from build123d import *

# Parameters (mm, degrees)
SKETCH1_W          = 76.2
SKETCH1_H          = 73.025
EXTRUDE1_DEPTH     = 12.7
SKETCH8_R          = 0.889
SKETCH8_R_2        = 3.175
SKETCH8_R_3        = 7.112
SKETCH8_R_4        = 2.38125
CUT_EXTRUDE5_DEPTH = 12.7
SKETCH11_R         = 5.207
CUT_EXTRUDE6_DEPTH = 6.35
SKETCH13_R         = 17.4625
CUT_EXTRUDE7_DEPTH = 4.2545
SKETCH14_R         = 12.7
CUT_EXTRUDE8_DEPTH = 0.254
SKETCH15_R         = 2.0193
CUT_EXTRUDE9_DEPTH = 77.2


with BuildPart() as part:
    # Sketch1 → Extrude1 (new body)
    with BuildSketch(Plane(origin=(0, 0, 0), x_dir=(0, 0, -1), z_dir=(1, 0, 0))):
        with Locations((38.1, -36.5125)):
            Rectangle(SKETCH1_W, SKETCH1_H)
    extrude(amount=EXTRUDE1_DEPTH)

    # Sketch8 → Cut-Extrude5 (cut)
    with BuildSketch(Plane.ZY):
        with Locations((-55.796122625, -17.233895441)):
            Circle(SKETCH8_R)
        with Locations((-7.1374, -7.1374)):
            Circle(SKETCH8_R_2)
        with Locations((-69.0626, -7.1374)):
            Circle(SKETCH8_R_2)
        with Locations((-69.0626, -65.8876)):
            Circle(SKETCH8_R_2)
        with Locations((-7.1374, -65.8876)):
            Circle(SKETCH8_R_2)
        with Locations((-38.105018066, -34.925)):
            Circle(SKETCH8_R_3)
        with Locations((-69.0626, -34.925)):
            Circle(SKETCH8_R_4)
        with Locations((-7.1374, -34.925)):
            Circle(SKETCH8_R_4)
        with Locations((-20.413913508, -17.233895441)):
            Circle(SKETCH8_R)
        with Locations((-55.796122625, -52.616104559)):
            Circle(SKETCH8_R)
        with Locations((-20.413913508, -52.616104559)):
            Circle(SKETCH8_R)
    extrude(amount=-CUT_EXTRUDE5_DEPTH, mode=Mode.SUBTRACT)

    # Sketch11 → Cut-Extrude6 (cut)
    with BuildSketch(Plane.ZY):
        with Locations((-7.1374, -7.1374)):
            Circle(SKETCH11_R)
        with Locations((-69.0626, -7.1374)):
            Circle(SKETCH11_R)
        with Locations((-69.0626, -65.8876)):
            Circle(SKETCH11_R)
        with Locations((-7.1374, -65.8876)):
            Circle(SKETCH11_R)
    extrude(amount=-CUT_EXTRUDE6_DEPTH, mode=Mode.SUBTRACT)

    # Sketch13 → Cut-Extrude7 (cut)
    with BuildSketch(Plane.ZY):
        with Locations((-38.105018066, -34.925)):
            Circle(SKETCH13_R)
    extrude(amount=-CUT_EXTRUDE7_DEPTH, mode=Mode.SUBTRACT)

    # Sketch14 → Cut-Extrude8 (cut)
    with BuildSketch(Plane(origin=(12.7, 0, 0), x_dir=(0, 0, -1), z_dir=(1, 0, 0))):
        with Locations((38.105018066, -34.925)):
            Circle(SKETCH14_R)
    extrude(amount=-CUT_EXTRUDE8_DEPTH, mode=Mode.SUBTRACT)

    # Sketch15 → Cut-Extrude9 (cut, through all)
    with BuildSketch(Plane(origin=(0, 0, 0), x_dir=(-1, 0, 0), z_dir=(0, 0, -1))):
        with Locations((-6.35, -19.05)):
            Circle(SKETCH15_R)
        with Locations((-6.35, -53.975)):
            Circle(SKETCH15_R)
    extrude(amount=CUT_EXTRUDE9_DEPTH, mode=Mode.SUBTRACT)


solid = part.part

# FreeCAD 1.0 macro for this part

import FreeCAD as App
import Part
import Sketcher

V = App.Vector
Q = App.Units.Quantity

doc = App.newDocument("Part")
body = doc.addObject("PartDesign::Body", "Body")

# Sketch on YZ plane
sketch1 = body.newObject("Sketcher::SketchObject", "Sketch")
sketch1.AttachmentSupport = (doc.getObject("YZ_Plane"), [""])
sketch1.MapMode = "FlatFace"
sketch1.addGeometry([
    Part.LineSegment(V(0, 0, 0), V(-73, 0, 0)),
    Part.LineSegment(V(-73, 0, 0), V(-73, -76, 0)),
    Part.LineSegment(V(-73, -76, 0), V(0, -76, 0)),
    Part.LineSegment(V(0, -76, 0), V(0, 0, 0)),
], False)
sketch1.addConstraint([
    Sketcher.Constraint("Coincident", 0, 2, 1, 1),
    Sketcher.Constraint("Coincident", 1, 2, 2, 1),
    Sketcher.Constraint("Coincident", 2, 2, 3, 1),
    Sketcher.Constraint("Coincident", 3, 2, 0, 1),
    Sketcher.Constraint("Horizontal", 0),
    Sketcher.Constraint("Vertical", 1),
    Sketcher.Constraint("Horizontal", 2),
    Sketcher.Constraint("Vertical", 3),
    Sketcher.Constraint("Coincident", 3, 2, -1, 1),
    Sketcher.Constraint("DistanceY", 1, 2, 1, 1, Q("3 in")),
    Sketcher.Constraint("DistanceX", 0, 2, 0, 1, Q("2.875 in")),
])
pad1 = body.newObject("PartDesign::Pad", "Pad")
pad1.Profile = sketch1
pad1.Length = Q("0.5 in")

# Sketch on YZ plane
sketch2 = body.newObject("Sketcher::SketchObject", "Sketch001")
sketch2.AttachmentSupport = (doc.getObject("YZ_Plane"), [""])
sketch2.MapMode = "FlatFace"
sketch2.addGeometry([
    Part.Circle(V(-17.2, -55.8, 0), V(0, 0, 1), 0.9),  # 0
    Part.Circle(V(-7.1, -7.1, 0), V(0, 0, 1), 3.2),  # 1
    Part.Circle(V(-7.1, -69.1, 0), V(0, 0, 1), 3.2),  # 2
    Part.Circle(V(-65.9, -69.1, 0), V(0, 0, 1), 3.2),  # 3
    Part.Circle(V(-65.9, -7.1, 0), V(0, 0, 1), 3.2),  # 4
    Part.Circle(V(-34.9, -38.1, 0), V(0, 0, 1), 7.1),  # 5
    Part.Circle(V(-34.9, -69.1, 0), V(0, 0, 1), 2.4),  # 6
    Part.Circle(V(-34.9, -7.1, 0), V(0, 0, 1), 2.4),  # 7
    Part.Circle(V(-17.2, -20.4, 0), V(0, 0, 1), 0.9),  # 8
    Part.Circle(V(-52.6, -55.8, 0), V(0, 0, 1), 0.9),  # 9
    Part.Circle(V(-52.6, -20.4, 0), V(0, 0, 1), 0.9),  # 10
], False)
sketch2.addConstraint([
    Sketcher.Constraint("Equal", 1, 2),
    Sketcher.Constraint("Equal", 2, 3),
    Sketcher.Constraint("Equal", 3, 4),
    Sketcher.Constraint("Equal", 6, 7),
    Sketcher.Constraint("Equal", 0, 8),
    Sketcher.Constraint("Equal", 8, 9),
    Sketcher.Constraint("Equal", 9, 10),
    Sketcher.Constraint("Horizontal", 2, 3, 3, 3),
    Sketcher.Constraint("Horizontal", 1, 3, 4, 3),
    Sketcher.Constraint("Horizontal", 3, 3, 6, 3),
    Sketcher.Constraint("Horizontal", 4, 3, 7, 3),
    Sketcher.Constraint("Horizontal", 0, 3, 9, 3),
    Sketcher.Constraint("Horizontal", 8, 3, 10, 3),
    Sketcher.Constraint("Vertical", 1, 3, 2, 3),
    Sketcher.Constraint("Vertical", 3, 3, 4, 3),
    Sketcher.Constraint("Vertical", 5, 3, 6, 3),
    Sketcher.Constraint("Vertical", 6, 3, 7, 3),
    Sketcher.Constraint("Vertical", 0, 3, 8, 3),
    Sketcher.Constraint("Vertical", 9, 3, 10, 3),
    Sketcher.Constraint("Diameter", 0, Q("0.07 in")),
    Sketcher.Constraint("Diameter", 1, Q("0.25 in")),
    Sketcher.Constraint("Diameter", 5, Q("0.56 in")),
    Sketcher.Constraint("Diameter", 6, Q("0.1875 in")),
    Sketcher.Constraint("DistanceX", 1, 3, -1, 1, Q("0.281 in")),
    Sketcher.Constraint("DistanceY", 1, 3, -1, 1, Q("0.281 in")),
    Sketcher.Constraint("DistanceY", 2, 3, -1, 1, Q("2.719 in")),
    Sketcher.Constraint("DistanceX", 3, 3, -1, 1, Q("2.594 in")),
    Sketcher.Constraint("DistanceX", 5, 3, -1, 1, Q("1.375 in")),
    Sketcher.Constraint("DistanceX", 0, 3, -1, 1, Q("0.6784998 in")),
    Sketcher.Constraint("DistanceX", 9, 3, -1, 1, Q("2.0715002 in")),
    Sketcher.Constraint("DistanceY", 0, 3, 5, 3, Q("0.6965002 in")),
    Sketcher.Constraint("DistanceY", 5, 3, 8, 3, Q("0.6965002 in")),
    Sketcher.Constraint("DistanceY", 5, 3, -1, 1, Q("38.105018 mm")),
])
pocket1 = body.newObject("PartDesign::Pocket", "Pocket")
pocket1.Profile = sketch2
pocket1.Length = Q("0.5 in")
pocket1.Reversed = True

# Sketch on YZ plane
sketch3 = body.newObject("Sketcher::SketchObject", "Sketch002")
sketch3.AttachmentSupport = (doc.getObject("YZ_Plane"), [""])
sketch3.MapMode = "FlatFace"
sketch3.addGeometry([
    Part.Circle(V(-7, -7, 0), V(0, 0, 1), 5),
    Part.Circle(V(-7, -69, 0), V(0, 0, 1), 5),
    Part.Circle(V(-66, -69, 0), V(0, 0, 1), 5),
    Part.Circle(V(-66, -7, 0), V(0, 0, 1), 5),
], False)
sketch3.addConstraint([
    Sketcher.Constraint("Equal", 0, 1),
    Sketcher.Constraint("Equal", 1, 2),
    Sketcher.Constraint("Equal", 2, 3),
    Sketcher.Constraint("Horizontal", 1, 3, 2, 3),
    Sketcher.Constraint("Horizontal", 0, 3, 3, 3),
    Sketcher.Constraint("Vertical", 0, 3, 1, 3),
    Sketcher.Constraint("Vertical", 2, 3, 3, 3),
    Sketcher.Constraint("Diameter", 0, Q("0.41 in")),
    Sketcher.Constraint("DistanceX", 0, 3, -1, 1, Q("0.281 in")),
    Sketcher.Constraint("DistanceY", 0, 3, -1, 1, Q("0.281 in")),
    Sketcher.Constraint("DistanceY", 1, 3, -1, 1, Q("2.719 in")),
    Sketcher.Constraint("DistanceX", 2, 3, -1, 1, Q("2.594 in")),
])
pocket2 = body.newObject("PartDesign::Pocket", "Pocket001")
pocket2.Profile = sketch3
pocket2.Length = Q("0.25 in")
pocket2.Reversed = True

# Sketch on YZ plane
sketch4 = body.newObject("Sketcher::SketchObject", "Sketch003")
sketch4.AttachmentSupport = (doc.getObject("YZ_Plane"), [""])
sketch4.MapMode = "FlatFace"
sketch4.addGeometry(Part.Circle(V(-35, -38, 0), V(0, 0, 1), 17), False)
sketch4.addConstraint([
    Sketcher.Constraint("Diameter", 0, Q("1.375 in")),
    Sketcher.Constraint("DistanceX", 0, 3, -1, 1, Q("1.375 in")),
    Sketcher.Constraint("DistanceY", 0, 3, -1, 1, Q("38.105018 mm")),
])
pocket3 = body.newObject("PartDesign::Pocket", "Pocket002")
pocket3.Profile = sketch4
pocket3.Length = Q("0.1675 in")
pocket3.Reversed = True

# Sketch on YZ plane
sketch5 = body.newObject("Sketcher::SketchObject", "Sketch004")
sketch5.AttachmentSupport = (doc.getObject("YZ_Plane"), [""])
sketch5.MapMode = "FlatFace"
sketch5.AttachmentOffset = App.Placement(V(0, 0, 0.5 * 25.4), App.Rotation())
sketch5.addGeometry(Part.Circle(V(-35, -38, 0), V(0, 0, 1), 13), False)
sketch5.addConstraint([
    Sketcher.Constraint("Diameter", 0, Q("1 in")),
    Sketcher.Constraint("DistanceX", 0, 3, -1, 1, Q("1.375 in")),
    Sketcher.Constraint("DistanceY", 0, 3, -1, 1, Q("38.105018 mm")),
])
pocket4 = body.newObject("PartDesign::Pocket", "Pocket003")
pocket4.Profile = sketch5
pocket4.Length = Q("0.01 in")

# Sketch on XY plane
sketch6 = body.newObject("Sketcher::SketchObject", "Sketch005")
sketch6.AttachmentSupport = (doc.getObject("XY_Plane"), [""])
sketch6.MapMode = "FlatFace"
sketch6.addGeometry([
    Part.Circle(V(6.3, -19.1, 0), V(0, 0, 1), 2),
    Part.Circle(V(6.3, -54, 0), V(0, 0, 1), 2),
], False)
sketch6.addConstraint([
    Sketcher.Constraint("Equal", 0, 1),
    Sketcher.Constraint("Vertical", 0, 3, 1, 3),
    Sketcher.Constraint("Diameter", 0, Q("0.159 in")),
    Sketcher.Constraint("DistanceX", -1, 1, 0, 3, Q("0.25 in")),
    Sketcher.Constraint("DistanceY", 0, 3, -1, 1, Q("0.75 in")),
    Sketcher.Constraint("DistanceY", 1, 3, -1, 1, Q("2.125 in")),
])
pocket5 = body.newObject("PartDesign::Pocket", "Pocket004")
pocket5.Profile = sketch6
pocket5.Type = "ThroughAll"

doc.recompute()
